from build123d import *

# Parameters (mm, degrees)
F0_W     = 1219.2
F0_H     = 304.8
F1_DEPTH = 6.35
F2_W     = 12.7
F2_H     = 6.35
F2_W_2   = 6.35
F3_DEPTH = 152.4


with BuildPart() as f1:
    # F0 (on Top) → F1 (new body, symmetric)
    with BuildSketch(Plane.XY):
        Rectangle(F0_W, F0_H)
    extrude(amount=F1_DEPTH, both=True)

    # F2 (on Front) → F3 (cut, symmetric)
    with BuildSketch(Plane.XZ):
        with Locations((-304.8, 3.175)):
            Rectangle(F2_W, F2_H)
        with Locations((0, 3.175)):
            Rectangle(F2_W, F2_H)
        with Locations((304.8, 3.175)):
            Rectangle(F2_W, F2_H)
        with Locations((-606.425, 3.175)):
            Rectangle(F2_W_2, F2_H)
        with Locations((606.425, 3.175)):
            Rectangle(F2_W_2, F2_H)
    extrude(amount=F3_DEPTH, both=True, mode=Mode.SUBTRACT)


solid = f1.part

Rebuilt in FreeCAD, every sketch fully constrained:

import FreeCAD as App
import Part
import Sketcher
from FreeCAD import Vector
Q = App.Units.Quantity


def add_polygon(sketch, points):
    """Adds a closed chain of lines whose ends are joined by coincident constraints."""
    first, n = sketch.GeometryCount, len(points)
    for a, b in zip(points, points[1:] + points[:1]):
        sketch.addGeometry(Part.LineSegment(App.Vector(*a, 0), App.Vector(*b, 0)), False)
    for i in range(n):
        sketch.addConstraint(Sketcher.Constraint("Coincident", first + i, 2, first + (i + 1) % n, 1))

doc = App.newDocument("Part")
params = doc.addObject("Spreadsheet::Sheet", "Params")
for row, (alias, value) in enumerate([
    ("sketch1_width", "48 in"),
    ("sketch1_height", "12 in"),
    ("pad1_length", "0.5 in"),
    ("sketch2_width", "0.5 in"),
    ("pocket1_length", "12 in"),
], start=1):
    params.set(f"A{row}", alias)
    params.set(f"B{row}", "=" + value)
    params.setAlias(f"B{row}", alias)

body = doc.addObject("PartDesign::Body", "Body")

# Sketch on XY plane
sketch1 = body.newObject("Sketcher::SketchObject", "Sketch")
sketch1.AttachmentSupport = (doc.getObject("XY_Plane"), [""])
sketch1.MapMode = "FlatFace"
add_polygon(sketch1, [(-610, 152), (-610, -152), (610, -152), (610, 152)])  # lines 0-3
sketch1.addConstraint(Sketcher.Constraint("Vertical", 0))
sketch1.addConstraint(Sketcher.Constraint("Horizontal", 1))
sketch1.addConstraint(Sketcher.Constraint("Vertical", 2))
sketch1.addConstraint(Sketcher.Constraint("Horizontal", 3))
sketch1.addConstraint(Sketcher.Constraint("Symmetric", 0, 2, 2, 2, -1, 1))
sketch1.addConstraint(Sketcher.Constraint("DistanceX", 1, 1, 1, 2, Q("48 in")))
sketch1.addConstraint(Sketcher.Constraint("DistanceY", 0, 2, 0, 1, Q("12 in")))
sketch1.setExpression("Constraints[9]", "Params.sketch1_width")
sketch1.setExpression("Constraints[10]", "Params.sketch1_height")
pad1 = body.newObject("PartDesign::Pad", "Pad")
pad1.Profile = sketch1
pad1.setExpression("Length", "Params.pad1_length")
pad1.Midplane = True

# Sketch on XZ plane
sketch2 = body.newObject("Sketcher::SketchObject", "Sketch001")
sketch2.AttachmentSupport = (doc.getObject("XZ_Plane"), [""])
sketch2.MapMode = "FlatFace"
add_polygon(sketch2, [(-311, 6), (-311, 0), (-298, 0), (-298, 6)])  # lines 0-3
add_polygon(sketch2, [(-6, 6), (-6, 0), (6, 0), (6, 6)])  # lines 4-7
add_polygon(sketch2, [(298, 6), (298, 0), (311, 0), (311, 6)])  # lines 8-11
add_polygon(sketch2, [(-610, 6), (-610, 0), (-603, 0), (-603, 6)])  # lines 12-15
add_polygon(sketch2, [(603, 6), (603, 0), (610, 0), (610, 6)])  # lines 16-19
sketch2.addConstraint(Sketcher.Constraint("Vertical", 0))
sketch2.addConstraint(Sketcher.Constraint("Horizontal", 1))
sketch2.addConstraint(Sketcher.Constraint("Vertical", 2))
sketch2.addConstraint(Sketcher.Constraint("Horizontal", 3))
sketch2.addConstraint(Sketcher.Constraint("Vertical", 4))
sketch2.addConstraint(Sketcher.Constraint("Horizontal", 5))
sketch2.addConstraint(Sketcher.Constraint("Vertical", 6))
sketch2.addConstraint(Sketcher.Constraint("Horizontal", 7))
sketch2.addConstraint(Sketcher.Constraint("Vertical", 8))
sketch2.addConstraint(Sketcher.Constraint("Horizontal", 9))
sketch2.addConstraint(Sketcher.Constraint("Vertical", 10))
sketch2.addConstraint(Sketcher.Constraint("Horizontal", 11))
sketch2.addConstraint(Sketcher.Constraint("Vertical", 12))
sketch2.addConstraint(Sketcher.Constraint("Horizontal", 13))
sketch2.addConstraint(Sketcher.Constraint("Vertical", 14))
sketch2.addConstraint(Sketcher.Constraint("Horizontal", 15))
sketch2.addConstraint(Sketcher.Constraint("Vertical", 16))
sketch2.addConstraint(Sketcher.Constraint("Horizontal", 17))
sketch2.addConstraint(Sketcher.Constraint("Vertical", 18))
sketch2.addConstraint(Sketcher.Constraint("Horizontal", 19))
sketch2.addConstraint(Sketcher.Constraint("Symmetric", 4, 2, 5, 2, -1, 1))
sketch2.addConstraint(Sketcher.Constraint("Symmetric", 1, 2, 8, 2, -1, 1))
sketch2.addConstraint(Sketcher.Constraint("Symmetric", 13, 2, 16, 2, -1, 1))
sketch2.addConstraint(Sketcher.Constraint("Symmetric", 0, 2, 9, 2, -2))
sketch2.addConstraint(Sketcher.Constraint("Symmetric", 12, 2, 17, 2, -2))
sketch2.addConstraint(Sketcher.Constraint("Horizontal", 3, 2, 6, 2))
sketch2.addConstraint(Sketcher.Constraint("Horizontal", 7, 2, 10, 2))
sketch2.addConstraint(Sketcher.Constraint("Horizontal", 11, 2, 14, 2))
sketch2.addConstraint(Sketcher.Constraint("Horizontal", 15, 2, 18, 2))
sketch2.addConstraint(Sketcher.Constraint("Equal", 3, 5))
sketch2.addConstraint(Sketcher.Constraint("Equal", 19, 0))
sketch2.addConstraint(Sketcher.Constraint("DistanceX", 1, 1, 1, 2, Q("0.5 in")))
sketch2.addConstraint(Sketcher.Constraint("DistanceX", 12, 2, -1, 1, Q("24 in")))
sketch2.addConstraint(Sketcher.Constraint("DistanceX", 0, 2, 4, 2, Q("12 in")))
sketch2.addConstraint(Sketcher.Constraint("DistanceX", 13, 2, 1, 2, Q("12 in")))
sketch2.setExpression("Constraints[51]", "Params.sketch2_width")
pocket1 = body.newObject("PartDesign::Pocket", "Pocket")
pocket1.Profile = sketch2
pocket1.setExpression("Length", "Params.pocket1_length")
pocket1.Midplane = True

doc.recompute()
